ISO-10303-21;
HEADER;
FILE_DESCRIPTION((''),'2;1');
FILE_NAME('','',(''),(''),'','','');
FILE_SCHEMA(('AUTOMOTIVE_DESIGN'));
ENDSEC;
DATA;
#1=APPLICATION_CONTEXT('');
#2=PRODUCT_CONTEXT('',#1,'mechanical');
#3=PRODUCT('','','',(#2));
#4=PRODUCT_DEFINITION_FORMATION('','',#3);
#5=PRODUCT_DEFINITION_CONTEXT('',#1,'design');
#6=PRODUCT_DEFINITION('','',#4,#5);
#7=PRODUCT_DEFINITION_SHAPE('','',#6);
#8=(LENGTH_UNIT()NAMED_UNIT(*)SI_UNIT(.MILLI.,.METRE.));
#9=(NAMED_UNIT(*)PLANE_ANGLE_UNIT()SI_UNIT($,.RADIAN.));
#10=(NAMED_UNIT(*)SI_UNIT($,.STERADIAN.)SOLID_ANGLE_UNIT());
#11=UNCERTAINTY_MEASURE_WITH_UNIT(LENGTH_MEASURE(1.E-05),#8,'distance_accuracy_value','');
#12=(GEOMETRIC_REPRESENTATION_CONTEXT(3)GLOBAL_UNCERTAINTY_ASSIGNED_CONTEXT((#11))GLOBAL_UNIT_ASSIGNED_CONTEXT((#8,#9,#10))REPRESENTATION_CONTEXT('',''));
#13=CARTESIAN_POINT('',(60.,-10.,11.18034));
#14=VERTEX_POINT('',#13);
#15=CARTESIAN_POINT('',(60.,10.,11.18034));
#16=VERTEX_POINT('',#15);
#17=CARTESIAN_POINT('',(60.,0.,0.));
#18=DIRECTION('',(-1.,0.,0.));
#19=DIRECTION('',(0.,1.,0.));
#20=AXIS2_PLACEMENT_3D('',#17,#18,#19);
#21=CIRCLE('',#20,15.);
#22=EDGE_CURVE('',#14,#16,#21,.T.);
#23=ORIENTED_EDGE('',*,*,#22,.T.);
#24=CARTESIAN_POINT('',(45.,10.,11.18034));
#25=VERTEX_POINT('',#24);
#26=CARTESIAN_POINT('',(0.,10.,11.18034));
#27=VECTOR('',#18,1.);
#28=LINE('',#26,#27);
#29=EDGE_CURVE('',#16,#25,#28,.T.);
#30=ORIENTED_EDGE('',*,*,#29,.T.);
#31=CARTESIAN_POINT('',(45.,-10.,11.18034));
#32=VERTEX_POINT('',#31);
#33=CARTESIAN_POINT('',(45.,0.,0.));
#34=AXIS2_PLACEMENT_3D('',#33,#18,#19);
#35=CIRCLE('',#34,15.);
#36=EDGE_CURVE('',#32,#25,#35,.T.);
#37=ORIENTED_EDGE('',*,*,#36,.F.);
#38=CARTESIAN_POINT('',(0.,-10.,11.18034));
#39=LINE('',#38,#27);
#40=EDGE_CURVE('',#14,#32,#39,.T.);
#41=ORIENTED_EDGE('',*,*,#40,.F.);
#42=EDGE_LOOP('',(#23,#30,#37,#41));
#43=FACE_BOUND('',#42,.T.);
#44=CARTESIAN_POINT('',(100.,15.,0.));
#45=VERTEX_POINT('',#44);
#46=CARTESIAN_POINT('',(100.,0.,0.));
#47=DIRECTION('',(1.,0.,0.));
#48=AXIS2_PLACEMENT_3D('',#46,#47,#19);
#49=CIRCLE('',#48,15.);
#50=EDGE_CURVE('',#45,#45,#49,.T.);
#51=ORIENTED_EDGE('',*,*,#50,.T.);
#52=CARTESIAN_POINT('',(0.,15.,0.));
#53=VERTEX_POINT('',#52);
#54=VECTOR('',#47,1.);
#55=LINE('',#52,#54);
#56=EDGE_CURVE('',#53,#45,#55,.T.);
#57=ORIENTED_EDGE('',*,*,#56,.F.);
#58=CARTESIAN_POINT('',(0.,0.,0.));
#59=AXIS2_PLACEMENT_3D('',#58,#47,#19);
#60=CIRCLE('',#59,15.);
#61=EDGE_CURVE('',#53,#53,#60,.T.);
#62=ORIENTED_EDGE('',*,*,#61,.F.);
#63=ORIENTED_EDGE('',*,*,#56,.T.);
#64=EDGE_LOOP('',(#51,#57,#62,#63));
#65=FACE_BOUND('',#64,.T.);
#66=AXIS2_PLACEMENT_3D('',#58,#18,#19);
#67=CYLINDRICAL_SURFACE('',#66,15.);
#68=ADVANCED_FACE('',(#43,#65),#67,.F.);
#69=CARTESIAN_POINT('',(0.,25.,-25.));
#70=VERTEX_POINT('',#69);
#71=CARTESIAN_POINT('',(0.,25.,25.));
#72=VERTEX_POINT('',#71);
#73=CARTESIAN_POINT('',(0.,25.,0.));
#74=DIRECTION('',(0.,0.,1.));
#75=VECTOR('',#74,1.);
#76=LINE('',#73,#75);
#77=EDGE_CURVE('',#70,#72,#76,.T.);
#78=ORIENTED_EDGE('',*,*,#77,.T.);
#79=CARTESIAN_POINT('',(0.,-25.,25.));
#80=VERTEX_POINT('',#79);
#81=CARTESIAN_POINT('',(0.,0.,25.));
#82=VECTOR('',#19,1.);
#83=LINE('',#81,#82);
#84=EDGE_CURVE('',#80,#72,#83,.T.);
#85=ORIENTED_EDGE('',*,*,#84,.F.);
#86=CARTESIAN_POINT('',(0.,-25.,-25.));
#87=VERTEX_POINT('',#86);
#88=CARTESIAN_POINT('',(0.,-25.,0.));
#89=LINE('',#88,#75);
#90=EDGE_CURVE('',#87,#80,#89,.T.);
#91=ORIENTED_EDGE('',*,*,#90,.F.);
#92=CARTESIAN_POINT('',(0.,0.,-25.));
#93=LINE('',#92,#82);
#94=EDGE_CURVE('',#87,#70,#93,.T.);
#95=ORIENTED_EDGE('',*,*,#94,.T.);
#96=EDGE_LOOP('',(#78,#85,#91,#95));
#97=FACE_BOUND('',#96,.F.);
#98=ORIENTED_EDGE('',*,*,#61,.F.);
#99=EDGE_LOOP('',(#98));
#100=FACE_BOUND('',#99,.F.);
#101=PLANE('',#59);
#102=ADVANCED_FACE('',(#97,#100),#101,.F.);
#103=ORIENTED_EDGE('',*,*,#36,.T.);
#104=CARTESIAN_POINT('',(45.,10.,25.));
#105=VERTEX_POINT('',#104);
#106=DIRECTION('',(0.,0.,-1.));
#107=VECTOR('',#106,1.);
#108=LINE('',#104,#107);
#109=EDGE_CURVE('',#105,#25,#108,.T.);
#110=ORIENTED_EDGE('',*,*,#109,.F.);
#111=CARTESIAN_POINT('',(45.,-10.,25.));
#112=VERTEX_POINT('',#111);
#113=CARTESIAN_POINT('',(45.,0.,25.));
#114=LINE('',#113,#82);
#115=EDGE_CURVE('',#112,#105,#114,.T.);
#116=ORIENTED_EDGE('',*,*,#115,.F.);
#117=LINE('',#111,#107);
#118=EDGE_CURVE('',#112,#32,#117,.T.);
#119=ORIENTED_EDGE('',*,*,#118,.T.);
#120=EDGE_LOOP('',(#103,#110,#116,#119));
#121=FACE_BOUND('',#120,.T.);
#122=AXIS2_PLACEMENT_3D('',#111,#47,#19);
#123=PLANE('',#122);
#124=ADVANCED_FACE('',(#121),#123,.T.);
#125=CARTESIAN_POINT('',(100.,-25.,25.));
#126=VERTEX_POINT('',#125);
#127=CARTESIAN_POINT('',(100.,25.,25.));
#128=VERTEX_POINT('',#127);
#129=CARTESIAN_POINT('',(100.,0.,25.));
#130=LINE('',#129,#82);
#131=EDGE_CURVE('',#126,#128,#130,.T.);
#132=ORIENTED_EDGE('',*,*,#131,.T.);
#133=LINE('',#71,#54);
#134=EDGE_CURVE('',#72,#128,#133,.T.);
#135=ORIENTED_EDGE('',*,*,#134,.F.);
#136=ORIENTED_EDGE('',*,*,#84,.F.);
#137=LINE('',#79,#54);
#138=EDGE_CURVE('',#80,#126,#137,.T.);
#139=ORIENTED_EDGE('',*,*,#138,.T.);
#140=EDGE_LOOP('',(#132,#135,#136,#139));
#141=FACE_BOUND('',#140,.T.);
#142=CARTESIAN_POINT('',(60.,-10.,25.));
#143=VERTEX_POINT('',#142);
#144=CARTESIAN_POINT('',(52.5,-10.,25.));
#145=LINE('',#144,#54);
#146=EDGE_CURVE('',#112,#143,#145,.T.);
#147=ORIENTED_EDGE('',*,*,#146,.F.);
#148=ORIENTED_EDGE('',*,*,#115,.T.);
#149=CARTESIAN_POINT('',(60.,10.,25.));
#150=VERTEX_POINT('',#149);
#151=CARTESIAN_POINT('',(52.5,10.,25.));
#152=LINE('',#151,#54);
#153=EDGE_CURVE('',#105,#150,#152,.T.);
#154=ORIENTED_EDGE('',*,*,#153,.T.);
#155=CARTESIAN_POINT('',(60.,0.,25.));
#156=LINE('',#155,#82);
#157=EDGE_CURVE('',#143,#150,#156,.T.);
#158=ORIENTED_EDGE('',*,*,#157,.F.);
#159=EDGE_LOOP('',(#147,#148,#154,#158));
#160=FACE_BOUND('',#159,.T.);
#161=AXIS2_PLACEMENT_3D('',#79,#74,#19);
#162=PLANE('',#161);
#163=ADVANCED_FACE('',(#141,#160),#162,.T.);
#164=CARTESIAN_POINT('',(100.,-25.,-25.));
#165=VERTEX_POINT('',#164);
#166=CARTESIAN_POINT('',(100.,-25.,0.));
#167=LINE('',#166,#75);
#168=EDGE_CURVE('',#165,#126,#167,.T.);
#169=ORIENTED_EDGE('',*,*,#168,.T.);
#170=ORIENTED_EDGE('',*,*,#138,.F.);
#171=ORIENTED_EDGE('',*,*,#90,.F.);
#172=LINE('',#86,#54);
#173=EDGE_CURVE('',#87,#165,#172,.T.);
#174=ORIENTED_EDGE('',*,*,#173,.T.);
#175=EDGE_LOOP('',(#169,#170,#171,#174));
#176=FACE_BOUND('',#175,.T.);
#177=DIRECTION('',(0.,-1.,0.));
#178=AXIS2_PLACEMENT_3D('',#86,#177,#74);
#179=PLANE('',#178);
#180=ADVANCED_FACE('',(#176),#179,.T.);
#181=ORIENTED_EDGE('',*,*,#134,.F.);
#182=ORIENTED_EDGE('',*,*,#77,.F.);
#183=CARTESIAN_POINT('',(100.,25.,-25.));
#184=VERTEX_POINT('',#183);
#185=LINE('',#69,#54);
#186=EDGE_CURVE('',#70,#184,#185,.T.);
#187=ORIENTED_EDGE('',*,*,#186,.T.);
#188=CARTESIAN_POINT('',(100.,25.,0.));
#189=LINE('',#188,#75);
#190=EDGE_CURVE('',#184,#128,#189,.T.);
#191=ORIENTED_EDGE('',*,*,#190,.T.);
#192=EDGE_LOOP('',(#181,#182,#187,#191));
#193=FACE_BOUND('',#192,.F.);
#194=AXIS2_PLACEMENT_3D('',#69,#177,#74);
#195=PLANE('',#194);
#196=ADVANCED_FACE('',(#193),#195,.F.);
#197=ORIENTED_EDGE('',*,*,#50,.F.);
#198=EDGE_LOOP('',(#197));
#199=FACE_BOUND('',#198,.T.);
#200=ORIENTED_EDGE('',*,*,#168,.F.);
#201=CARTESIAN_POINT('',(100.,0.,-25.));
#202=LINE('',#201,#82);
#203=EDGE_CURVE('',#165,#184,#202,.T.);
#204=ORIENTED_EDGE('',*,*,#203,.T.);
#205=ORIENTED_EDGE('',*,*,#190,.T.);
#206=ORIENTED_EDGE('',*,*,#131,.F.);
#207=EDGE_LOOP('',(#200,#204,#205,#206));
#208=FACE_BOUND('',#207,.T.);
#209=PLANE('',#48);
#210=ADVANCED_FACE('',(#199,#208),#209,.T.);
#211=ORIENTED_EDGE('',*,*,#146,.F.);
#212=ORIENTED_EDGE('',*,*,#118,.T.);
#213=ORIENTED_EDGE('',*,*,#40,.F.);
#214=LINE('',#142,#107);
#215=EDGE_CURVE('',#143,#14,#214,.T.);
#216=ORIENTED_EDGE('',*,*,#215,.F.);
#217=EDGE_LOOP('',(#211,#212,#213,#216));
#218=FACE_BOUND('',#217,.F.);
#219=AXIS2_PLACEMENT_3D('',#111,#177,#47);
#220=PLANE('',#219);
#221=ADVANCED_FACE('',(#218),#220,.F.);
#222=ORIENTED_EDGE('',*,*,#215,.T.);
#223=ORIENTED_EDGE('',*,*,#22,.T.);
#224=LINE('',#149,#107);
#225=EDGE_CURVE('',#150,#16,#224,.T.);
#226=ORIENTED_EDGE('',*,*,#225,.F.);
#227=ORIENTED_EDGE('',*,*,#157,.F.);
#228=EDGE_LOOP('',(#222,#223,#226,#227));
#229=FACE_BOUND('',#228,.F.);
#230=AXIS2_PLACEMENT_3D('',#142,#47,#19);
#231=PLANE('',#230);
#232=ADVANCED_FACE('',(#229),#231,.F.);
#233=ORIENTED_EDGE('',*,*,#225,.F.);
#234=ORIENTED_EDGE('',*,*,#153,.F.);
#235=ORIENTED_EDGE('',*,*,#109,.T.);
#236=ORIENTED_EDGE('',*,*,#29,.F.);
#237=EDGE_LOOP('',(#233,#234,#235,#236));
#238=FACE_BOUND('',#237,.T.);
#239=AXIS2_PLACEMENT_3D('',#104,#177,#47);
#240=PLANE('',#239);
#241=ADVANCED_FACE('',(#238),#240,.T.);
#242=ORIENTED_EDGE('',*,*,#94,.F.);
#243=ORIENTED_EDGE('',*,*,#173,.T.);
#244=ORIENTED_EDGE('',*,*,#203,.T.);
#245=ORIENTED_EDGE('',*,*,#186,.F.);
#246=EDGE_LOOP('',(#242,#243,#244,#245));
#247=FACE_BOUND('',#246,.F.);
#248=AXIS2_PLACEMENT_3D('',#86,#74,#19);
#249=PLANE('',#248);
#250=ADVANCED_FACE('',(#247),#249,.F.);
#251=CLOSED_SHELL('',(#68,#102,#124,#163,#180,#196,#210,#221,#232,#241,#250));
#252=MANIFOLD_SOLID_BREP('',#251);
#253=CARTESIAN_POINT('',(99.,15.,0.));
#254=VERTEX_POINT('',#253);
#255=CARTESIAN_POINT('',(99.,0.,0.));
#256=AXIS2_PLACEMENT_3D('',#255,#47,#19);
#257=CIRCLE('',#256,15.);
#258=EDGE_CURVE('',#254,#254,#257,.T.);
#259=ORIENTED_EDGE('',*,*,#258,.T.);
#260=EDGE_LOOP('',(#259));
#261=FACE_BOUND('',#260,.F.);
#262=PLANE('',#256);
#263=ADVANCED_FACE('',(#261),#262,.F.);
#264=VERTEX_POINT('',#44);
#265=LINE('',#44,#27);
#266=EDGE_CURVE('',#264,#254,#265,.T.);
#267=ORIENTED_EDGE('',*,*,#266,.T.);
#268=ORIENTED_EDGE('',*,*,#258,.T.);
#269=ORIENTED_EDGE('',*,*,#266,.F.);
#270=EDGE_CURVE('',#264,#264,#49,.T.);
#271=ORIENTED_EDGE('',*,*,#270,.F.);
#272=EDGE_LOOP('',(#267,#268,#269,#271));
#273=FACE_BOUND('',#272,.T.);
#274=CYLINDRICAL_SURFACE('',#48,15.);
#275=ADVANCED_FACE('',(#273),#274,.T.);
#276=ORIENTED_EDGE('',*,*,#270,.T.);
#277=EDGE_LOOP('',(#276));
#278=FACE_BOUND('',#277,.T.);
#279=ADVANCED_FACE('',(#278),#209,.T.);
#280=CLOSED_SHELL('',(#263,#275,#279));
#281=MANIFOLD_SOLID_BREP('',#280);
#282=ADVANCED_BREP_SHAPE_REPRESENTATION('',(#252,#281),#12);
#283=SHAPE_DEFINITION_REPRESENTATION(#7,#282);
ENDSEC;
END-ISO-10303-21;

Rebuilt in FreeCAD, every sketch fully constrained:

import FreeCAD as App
import Part
import Sketcher

doc = App.newDocument("Part")
body = doc.addObject("PartDesign::Body", "Body")

# Sketch on YZ plane
sketch1 = doc.addObject("Sketcher::SketchObject", "Sketch")
body.addObject(sketch1)
sketch1.AttachmentSupport = (doc.YZ_Plane, [""])
sketch1.MapMode = "FlatFace"
sketch1.addGeometry([
    Part.LineSegment(App.Vector(-25, 25, 0), App.Vector(-25, -25, 0)),  # 0
    Part.LineSegment(App.Vector(-25, -25, 0), App.Vector(25, -25, 0)),  # 1
    Part.LineSegment(App.Vector(25, -25, 0), App.Vector(25, 25, 0)),  # 2
    Part.LineSegment(App.Vector(25, 25, 0), App.Vector(-25, 25, 0)),  # 3
    Part.Circle(App.Vector(0, 0, 0), App.Vector(0, 0, 1), 15),  # 4
], False)
sketch1.addConstraint([
    Sketcher.Constraint("Coincident", 0, 2, 1, 1),
    Sketcher.Constraint("Coincident", 1, 2, 2, 1),
    Sketcher.Constraint("Coincident", 2, 2, 3, 1),
    Sketcher.Constraint("Coincident", 3, 2, 0, 1),
    Sketcher.Constraint("Vertical", 0),
    Sketcher.Constraint("Horizontal", 1),
    Sketcher.Constraint("Vertical", 2),
    Sketcher.Constraint("Horizontal", 3),
    Sketcher.Constraint("Coincident", 4, 3, -1, 1),
    Sketcher.Constraint("Symmetric", 0, 2, 2, 2, -1, 1),
    Sketcher.Constraint("Equal", 3, 0),
    Sketcher.Constraint("Diameter", 4, 30.0),
    Sketcher.Constraint("DistanceX", 1, 1, 1, 2, 50.0),
])
pad1 = doc.addObject("PartDesign::Pad", "Pad")
body.addObject(pad1)
pad1.Profile = sketch1
pad1.Length = 100

# Sketch on XY plane
sketch2 = doc.addObject("Sketcher::SketchObject", "Sketch001")
body.addObject(sketch2)
sketch2.AttachmentSupport = (doc.XY_Plane, [""])
sketch2.MapMode = "FlatFace"
sketch2.AttachmentOffset = App.Placement(App.Vector(0, 0, 25), App.Rotation())
sketch2.addGeometry([
    Part.LineSegment(App.Vector(45, 10, 0), App.Vector(45, -10, 0)),
    Part.LineSegment(App.Vector(45, -10, 0), App.Vector(60, -10, 0)),
    Part.LineSegment(App.Vector(60, -10, 0), App.Vector(60, 10, 0)),
    Part.LineSegment(App.Vector(60, 10, 0), App.Vector(45, 10, 0)),
], False)
sketch2.addConstraint([
    Sketcher.Constraint("Coincident", 0, 2, 1, 1),
    Sketcher.Constraint("Coincident", 1, 2, 2, 1),
    Sketcher.Constraint("Coincident", 2, 2, 3, 1),
    Sketcher.Constraint("Coincident", 3, 2, 0, 1),
    Sketcher.Constraint("Vertical", 0),
    Sketcher.Constraint("Horizontal", 1),
    Sketcher.Constraint("Vertical", 2),
    Sketcher.Constraint("Horizontal", 3),
    Sketcher.Constraint("DistanceX", 1, 1, 1, 2, 15.0),
    Sketcher.Constraint("DistanceY", 0, 2, 0, 1, 20.0),
    Sketcher.Constraint("DistanceX", -1, 1, 0, 2, 45.0),
    Sketcher.Constraint("DistanceY", 0, 2, -1, 1, 10.0),
])
pocket1 = doc.addObject("PartDesign::Pocket", "Pocket")
body.addObject(pocket1)
pocket1.Profile = sketch2
pocket1.Length = 25
body2 = doc.addObject("PartDesign::Body", "Body001")

# Sketch on YZ plane
sketch3 = doc.addObject("Sketcher::SketchObject", "Sketch002")
body2.addObject(sketch3)
sketch3.AttachmentSupport = (doc.getObject("YZ_Plane001"), [""])
sketch3.MapMode = "FlatFace"
sketch3.AttachmentOffset = App.Placement(App.Vector(0, 0, 100), App.Rotation())
sketch3.addGeometry(Part.Circle(App.Vector(0, 0, 0), App.Vector(0, 0, 1), 15), False)
sketch3.addConstraint([
    Sketcher.Constraint("Coincident", 0, 3, -1, 1),
    Sketcher.Constraint("Diameter", 0, 30.0),
])
pad2 = doc.addObject("PartDesign::Pad", "Pad001")
body2.addObject(pad2)
pad2.Profile = sketch3
pad2.Length = 1
pad2.Reversed = True

doc.recompute()
